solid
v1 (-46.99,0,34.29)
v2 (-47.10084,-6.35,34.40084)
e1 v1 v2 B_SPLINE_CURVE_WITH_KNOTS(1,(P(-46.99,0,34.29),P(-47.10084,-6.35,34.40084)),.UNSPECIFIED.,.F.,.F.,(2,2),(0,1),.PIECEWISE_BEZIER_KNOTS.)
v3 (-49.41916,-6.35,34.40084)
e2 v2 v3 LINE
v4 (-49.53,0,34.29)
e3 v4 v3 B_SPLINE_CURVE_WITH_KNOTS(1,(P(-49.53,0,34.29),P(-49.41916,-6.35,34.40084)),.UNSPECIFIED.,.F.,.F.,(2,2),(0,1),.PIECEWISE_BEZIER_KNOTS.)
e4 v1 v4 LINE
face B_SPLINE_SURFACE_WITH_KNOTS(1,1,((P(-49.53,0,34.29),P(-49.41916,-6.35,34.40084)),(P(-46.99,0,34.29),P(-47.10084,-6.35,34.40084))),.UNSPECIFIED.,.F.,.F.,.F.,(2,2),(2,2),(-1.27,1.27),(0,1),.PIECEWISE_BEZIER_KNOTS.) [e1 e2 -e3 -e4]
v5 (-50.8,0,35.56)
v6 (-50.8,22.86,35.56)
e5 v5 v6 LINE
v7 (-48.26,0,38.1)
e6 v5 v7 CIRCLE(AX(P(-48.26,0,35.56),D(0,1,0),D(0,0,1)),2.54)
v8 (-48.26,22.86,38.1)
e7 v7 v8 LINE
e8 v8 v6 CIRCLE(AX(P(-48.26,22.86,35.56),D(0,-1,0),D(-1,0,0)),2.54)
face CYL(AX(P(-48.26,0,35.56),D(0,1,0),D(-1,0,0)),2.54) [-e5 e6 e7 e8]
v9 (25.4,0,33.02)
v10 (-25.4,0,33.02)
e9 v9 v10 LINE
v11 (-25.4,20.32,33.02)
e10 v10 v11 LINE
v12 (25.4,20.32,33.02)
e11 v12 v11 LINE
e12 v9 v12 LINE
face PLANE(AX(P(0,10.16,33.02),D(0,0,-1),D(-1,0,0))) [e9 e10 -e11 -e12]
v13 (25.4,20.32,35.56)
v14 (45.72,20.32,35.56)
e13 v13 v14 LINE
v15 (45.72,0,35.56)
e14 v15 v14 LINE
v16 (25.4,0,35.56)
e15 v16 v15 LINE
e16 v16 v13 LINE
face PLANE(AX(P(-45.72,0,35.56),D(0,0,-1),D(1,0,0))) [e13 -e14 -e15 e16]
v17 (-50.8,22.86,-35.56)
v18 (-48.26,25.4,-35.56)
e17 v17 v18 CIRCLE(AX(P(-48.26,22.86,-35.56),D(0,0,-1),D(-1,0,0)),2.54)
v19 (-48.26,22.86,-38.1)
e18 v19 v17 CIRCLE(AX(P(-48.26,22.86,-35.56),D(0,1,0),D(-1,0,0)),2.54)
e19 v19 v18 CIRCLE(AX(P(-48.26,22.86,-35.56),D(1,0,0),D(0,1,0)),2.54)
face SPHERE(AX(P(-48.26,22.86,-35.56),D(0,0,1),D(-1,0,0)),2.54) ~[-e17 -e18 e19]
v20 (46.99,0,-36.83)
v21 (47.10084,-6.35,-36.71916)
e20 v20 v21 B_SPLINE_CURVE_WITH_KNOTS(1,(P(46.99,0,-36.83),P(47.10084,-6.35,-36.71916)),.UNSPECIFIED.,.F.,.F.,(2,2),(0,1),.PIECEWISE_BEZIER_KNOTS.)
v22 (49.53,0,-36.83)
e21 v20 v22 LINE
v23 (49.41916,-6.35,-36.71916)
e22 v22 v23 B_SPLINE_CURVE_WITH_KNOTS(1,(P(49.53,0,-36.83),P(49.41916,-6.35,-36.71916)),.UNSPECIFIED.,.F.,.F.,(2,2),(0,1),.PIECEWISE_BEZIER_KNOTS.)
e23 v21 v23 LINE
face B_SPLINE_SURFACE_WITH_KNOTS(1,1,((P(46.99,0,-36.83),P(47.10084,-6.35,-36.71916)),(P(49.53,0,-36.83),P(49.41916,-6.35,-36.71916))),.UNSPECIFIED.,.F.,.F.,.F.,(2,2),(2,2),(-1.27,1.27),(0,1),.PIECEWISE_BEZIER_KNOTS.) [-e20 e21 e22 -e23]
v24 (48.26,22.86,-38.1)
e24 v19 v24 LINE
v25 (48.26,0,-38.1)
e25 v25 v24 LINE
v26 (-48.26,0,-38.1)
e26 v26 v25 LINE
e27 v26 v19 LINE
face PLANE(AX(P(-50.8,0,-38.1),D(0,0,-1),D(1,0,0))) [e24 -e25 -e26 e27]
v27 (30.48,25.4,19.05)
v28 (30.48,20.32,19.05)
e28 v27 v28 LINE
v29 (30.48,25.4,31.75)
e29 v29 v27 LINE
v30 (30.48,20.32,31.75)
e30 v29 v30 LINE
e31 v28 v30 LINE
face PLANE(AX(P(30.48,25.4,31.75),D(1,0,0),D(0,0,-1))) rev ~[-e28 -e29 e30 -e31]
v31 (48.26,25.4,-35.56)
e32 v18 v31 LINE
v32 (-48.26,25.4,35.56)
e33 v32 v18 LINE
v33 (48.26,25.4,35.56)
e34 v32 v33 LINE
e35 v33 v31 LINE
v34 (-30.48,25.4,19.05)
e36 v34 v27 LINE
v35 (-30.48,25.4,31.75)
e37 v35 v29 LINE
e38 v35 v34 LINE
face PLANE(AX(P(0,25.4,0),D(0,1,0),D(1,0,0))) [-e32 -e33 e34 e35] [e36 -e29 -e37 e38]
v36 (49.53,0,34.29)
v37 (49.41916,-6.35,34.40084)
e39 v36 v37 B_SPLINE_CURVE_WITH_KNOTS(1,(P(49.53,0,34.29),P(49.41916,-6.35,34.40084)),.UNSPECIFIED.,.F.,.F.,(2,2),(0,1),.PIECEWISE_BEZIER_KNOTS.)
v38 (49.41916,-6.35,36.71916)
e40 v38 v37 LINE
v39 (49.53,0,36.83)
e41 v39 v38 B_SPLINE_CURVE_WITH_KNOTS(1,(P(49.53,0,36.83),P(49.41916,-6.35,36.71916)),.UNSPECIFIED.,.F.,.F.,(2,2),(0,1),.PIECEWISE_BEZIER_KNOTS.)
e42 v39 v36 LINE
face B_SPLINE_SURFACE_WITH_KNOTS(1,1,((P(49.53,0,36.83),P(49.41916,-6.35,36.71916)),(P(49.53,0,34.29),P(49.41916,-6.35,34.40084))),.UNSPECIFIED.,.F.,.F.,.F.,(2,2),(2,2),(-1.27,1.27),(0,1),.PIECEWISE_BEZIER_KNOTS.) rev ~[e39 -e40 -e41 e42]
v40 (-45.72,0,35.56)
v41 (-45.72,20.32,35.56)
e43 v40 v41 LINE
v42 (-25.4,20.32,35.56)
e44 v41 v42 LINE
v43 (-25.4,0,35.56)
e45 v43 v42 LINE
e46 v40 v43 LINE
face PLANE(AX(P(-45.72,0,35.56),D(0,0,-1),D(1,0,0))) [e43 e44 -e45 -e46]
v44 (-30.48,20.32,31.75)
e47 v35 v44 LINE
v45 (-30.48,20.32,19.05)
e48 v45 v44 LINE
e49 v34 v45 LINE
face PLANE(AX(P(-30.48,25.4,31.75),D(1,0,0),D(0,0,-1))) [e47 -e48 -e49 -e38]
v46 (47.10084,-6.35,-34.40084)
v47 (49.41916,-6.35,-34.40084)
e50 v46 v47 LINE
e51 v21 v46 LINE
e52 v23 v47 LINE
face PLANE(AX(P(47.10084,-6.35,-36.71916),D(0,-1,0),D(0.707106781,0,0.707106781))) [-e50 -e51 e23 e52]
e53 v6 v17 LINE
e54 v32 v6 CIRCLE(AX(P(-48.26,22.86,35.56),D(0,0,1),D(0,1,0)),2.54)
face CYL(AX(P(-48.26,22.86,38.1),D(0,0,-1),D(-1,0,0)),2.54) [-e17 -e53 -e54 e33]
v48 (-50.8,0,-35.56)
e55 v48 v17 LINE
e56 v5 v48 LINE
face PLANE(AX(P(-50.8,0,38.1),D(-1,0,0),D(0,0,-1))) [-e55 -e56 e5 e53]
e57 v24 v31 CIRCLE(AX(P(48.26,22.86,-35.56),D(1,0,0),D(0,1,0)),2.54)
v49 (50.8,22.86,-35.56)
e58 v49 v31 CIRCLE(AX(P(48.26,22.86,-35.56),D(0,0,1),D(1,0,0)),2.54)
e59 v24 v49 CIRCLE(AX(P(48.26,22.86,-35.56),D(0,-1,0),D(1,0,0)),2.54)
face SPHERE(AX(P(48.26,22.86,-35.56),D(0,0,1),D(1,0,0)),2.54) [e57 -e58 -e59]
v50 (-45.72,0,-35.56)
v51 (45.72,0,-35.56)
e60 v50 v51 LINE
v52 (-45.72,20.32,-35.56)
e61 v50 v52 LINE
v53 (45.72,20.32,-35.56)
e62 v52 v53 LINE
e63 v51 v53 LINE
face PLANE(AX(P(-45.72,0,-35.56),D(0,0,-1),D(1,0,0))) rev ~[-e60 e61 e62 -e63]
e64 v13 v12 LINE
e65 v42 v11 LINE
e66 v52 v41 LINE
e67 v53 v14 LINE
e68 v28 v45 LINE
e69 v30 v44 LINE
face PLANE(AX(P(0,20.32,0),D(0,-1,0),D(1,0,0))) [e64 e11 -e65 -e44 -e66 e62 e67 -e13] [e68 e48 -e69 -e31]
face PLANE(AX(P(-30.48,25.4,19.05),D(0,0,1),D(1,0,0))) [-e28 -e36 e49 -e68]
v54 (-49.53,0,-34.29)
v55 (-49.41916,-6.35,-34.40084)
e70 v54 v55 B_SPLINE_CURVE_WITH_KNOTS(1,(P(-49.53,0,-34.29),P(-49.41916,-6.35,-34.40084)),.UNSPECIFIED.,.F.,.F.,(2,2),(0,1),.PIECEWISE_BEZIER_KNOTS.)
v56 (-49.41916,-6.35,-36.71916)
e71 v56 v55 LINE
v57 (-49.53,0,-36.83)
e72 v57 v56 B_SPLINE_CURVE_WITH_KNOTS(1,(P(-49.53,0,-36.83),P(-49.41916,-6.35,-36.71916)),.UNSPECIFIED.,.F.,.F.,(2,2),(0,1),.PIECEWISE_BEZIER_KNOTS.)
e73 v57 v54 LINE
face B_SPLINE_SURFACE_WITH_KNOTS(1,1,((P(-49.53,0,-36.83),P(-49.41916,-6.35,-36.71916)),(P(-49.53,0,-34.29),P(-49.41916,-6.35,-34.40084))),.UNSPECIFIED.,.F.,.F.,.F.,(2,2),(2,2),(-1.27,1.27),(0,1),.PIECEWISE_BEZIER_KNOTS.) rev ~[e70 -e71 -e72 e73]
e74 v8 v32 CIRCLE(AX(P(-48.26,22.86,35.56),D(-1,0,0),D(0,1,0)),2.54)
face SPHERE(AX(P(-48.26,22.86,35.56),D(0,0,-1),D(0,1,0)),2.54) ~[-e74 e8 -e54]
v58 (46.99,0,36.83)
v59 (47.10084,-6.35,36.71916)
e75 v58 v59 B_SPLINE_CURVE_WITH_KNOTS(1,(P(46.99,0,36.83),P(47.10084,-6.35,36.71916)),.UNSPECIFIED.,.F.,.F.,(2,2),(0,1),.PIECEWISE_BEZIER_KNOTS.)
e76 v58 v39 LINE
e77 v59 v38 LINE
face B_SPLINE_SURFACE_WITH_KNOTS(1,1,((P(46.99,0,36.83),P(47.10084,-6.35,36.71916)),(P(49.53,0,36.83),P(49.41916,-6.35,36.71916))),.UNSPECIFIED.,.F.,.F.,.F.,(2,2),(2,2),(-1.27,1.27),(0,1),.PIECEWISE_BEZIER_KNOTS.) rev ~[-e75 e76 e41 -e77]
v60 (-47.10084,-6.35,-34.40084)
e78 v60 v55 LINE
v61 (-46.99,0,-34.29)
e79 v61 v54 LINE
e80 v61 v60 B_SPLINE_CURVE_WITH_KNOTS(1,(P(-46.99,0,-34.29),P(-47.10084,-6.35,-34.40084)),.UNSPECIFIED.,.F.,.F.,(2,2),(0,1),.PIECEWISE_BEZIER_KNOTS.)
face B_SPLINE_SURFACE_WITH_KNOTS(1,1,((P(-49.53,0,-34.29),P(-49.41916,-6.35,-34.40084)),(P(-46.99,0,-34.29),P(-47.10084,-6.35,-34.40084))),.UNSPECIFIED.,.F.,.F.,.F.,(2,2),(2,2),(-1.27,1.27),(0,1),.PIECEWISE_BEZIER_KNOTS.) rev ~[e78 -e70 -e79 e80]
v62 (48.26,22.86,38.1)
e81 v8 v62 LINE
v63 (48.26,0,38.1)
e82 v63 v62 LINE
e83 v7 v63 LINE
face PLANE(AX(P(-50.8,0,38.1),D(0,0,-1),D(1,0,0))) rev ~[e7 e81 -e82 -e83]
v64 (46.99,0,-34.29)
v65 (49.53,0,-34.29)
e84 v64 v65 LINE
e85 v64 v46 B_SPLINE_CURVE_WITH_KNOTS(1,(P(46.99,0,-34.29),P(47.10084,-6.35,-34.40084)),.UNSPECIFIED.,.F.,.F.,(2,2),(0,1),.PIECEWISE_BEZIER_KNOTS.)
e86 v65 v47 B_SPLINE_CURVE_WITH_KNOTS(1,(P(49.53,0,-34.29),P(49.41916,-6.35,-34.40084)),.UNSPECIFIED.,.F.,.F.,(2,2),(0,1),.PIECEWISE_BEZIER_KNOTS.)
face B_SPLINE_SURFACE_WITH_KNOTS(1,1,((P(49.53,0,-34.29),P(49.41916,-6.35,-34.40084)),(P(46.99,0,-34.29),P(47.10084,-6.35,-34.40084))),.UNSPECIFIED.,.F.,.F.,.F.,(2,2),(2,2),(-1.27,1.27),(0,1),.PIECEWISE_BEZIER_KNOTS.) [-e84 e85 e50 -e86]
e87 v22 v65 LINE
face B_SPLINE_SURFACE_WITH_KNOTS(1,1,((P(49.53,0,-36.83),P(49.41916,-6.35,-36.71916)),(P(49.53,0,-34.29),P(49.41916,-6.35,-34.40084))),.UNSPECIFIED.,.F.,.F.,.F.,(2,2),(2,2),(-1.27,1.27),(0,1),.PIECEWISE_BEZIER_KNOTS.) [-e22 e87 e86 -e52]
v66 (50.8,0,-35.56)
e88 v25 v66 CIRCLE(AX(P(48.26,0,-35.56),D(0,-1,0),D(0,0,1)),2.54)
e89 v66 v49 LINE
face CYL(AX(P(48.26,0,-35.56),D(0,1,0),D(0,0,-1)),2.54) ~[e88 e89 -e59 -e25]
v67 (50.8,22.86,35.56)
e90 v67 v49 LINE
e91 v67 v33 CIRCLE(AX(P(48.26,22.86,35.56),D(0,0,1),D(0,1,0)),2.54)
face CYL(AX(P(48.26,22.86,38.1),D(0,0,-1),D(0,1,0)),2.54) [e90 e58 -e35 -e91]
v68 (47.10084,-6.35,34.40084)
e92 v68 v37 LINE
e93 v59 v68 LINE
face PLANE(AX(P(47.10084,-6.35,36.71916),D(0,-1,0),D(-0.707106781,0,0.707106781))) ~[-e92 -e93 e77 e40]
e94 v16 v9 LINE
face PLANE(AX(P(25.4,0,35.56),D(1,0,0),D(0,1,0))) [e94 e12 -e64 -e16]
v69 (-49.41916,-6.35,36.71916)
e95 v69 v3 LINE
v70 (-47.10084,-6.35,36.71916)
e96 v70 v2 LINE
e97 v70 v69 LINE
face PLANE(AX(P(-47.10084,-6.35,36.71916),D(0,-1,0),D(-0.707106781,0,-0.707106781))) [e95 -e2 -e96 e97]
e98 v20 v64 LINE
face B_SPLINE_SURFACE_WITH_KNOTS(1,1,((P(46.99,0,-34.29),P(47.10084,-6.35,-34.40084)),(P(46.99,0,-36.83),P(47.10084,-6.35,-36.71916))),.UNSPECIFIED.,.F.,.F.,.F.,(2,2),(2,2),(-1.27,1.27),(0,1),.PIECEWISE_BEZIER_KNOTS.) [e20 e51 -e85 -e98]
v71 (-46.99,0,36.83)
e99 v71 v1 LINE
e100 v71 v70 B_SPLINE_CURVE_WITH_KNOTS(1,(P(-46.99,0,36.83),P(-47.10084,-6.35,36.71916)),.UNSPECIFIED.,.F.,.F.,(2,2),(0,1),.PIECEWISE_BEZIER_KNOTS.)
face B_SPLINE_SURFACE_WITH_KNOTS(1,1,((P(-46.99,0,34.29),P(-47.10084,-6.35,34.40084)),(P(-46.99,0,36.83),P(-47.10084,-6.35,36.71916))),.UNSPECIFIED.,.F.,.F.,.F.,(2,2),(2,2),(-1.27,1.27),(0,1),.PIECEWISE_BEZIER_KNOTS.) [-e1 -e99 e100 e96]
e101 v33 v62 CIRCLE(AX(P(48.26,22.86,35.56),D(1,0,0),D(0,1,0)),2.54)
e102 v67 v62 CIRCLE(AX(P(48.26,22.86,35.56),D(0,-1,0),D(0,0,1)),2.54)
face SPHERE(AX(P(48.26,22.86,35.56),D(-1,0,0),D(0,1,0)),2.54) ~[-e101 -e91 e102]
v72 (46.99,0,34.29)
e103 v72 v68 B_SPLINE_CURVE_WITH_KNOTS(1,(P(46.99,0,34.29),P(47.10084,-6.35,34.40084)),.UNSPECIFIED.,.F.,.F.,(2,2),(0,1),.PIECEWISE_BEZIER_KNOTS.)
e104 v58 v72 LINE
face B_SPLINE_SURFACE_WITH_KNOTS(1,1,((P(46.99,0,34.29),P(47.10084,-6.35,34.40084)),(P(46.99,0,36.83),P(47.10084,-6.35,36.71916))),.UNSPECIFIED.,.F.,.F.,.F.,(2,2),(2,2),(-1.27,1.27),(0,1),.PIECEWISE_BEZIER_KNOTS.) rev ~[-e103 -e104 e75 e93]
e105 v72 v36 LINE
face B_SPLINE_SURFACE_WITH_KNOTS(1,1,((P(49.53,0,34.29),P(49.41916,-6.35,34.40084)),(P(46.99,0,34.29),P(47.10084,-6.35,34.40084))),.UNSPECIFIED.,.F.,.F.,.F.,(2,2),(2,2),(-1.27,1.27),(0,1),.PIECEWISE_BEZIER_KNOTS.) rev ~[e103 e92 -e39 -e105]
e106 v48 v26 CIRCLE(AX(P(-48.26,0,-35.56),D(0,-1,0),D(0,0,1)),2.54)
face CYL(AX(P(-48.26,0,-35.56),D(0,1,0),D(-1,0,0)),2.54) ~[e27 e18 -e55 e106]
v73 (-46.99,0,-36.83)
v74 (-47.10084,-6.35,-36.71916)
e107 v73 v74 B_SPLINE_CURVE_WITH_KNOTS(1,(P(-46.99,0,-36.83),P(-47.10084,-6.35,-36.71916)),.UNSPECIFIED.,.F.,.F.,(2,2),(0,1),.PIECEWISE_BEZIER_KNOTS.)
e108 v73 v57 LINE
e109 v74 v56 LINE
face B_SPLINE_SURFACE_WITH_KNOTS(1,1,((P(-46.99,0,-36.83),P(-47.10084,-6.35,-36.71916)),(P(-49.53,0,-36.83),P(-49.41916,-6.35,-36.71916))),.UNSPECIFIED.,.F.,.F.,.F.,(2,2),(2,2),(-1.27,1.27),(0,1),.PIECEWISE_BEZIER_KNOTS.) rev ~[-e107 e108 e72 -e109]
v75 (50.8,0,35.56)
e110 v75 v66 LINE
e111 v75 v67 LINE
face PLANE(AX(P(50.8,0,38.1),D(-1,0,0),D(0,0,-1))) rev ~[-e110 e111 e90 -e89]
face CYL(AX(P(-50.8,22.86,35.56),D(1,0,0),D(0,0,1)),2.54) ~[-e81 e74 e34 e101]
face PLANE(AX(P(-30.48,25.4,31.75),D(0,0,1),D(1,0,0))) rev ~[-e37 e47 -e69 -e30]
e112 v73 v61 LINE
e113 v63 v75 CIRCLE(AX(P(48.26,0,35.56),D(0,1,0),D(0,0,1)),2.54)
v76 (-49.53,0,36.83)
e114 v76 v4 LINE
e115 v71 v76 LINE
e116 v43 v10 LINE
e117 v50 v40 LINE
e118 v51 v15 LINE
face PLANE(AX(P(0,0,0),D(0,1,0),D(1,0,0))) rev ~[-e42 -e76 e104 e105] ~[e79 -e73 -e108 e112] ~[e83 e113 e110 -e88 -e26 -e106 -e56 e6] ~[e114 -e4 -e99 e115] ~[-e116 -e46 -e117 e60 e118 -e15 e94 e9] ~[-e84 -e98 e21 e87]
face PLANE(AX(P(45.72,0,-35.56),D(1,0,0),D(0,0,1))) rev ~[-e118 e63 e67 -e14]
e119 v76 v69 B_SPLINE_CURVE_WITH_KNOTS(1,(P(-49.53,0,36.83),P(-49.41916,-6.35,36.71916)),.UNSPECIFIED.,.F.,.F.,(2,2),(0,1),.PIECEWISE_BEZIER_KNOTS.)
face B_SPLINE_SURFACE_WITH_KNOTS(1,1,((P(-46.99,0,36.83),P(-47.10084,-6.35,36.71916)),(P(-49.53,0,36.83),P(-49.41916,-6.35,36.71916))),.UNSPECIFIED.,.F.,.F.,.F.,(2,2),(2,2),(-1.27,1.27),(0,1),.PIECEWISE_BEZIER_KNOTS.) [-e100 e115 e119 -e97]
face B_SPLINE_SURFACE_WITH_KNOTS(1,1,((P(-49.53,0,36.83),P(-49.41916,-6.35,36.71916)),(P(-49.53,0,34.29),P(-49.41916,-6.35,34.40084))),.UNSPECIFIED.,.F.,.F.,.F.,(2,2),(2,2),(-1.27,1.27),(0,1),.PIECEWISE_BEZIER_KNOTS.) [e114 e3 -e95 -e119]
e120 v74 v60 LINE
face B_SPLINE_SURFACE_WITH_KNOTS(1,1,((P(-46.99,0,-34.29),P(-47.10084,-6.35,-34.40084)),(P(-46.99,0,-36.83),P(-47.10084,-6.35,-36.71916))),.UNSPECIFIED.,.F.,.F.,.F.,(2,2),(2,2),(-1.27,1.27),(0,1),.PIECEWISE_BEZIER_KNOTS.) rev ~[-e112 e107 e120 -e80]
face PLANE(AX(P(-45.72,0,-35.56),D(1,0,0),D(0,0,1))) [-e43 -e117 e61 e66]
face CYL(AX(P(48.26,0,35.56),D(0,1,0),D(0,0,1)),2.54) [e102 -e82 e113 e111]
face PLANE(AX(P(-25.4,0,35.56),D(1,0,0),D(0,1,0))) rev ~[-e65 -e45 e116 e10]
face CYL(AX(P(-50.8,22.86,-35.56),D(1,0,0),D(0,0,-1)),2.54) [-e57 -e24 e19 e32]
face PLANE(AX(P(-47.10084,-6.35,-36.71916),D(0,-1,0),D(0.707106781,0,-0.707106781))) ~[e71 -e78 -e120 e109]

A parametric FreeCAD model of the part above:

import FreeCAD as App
import Part
import Sketcher
from FreeCAD import Vector
Q = App.Units.Quantity


def edges_at(feature, points):
    """Names of the edges that pass closest to the given points."""
    edges = feature.Shape.Edges
    near = lambda p: min(range(len(edges)), key=lambda i: edges[i].distToShape(Part.Vertex(*p))[0])
    return sorted({f"Edge{near(p) + 1}" for p in points})


def add_polygon(sketch, points):
    """Adds a closed chain of lines whose ends are joined by coincident constraints."""
    first, n = sketch.GeometryCount, len(points)
    for a, b in zip(points, points[1:] + points[:1]):
        sketch.addGeometry(Part.LineSegment(App.Vector(*a, 0), App.Vector(*b, 0)), False)
    for i in range(n):
        sketch.addConstraint(Sketcher.Constraint("Coincident", first + i, 2, first + (i + 1) % n, 1))

doc = App.newDocument("Part")
body = doc.addObject("PartDesign::Body", "Body")

sketch1 = body.newObject("Sketcher::SketchObject", "Sketch")
sketch1.AttachmentSupport = (doc.getObject("XZ_Plane"), [""])
sketch1.MapMode = "FlatFace"
add_polygon(sketch1, [(-51, -38), (-51, 38), (51, 38), (51, -38)])
sketch1.addConstraint(Sketcher.Constraint("Vertical", 0))
sketch1.addConstraint(Sketcher.Constraint("Horizontal", 1))
sketch1.addConstraint(Sketcher.Constraint("Vertical", 2))
sketch1.addConstraint(Sketcher.Constraint("Horizontal", 3))
sketch1.addConstraint(Sketcher.Constraint("Symmetric", 0, 2, 2, 2, -1, 1))
sketch1.addConstraint(Sketcher.Constraint("DistanceX", 1, 1, 1, 2, Q("4 in")))
sketch1.addConstraint(Sketcher.Constraint("DistanceY", 0, 1, 0, 2, Q("3 in")))
pad1 = body.newObject("PartDesign::Pad", "Pad")
pad1.Profile = sketch1
pad1.Length = Q("1 in")
pad1.Reversed = True

sketch2 = body.newObject("Sketcher::SketchObject", "Sketch001")
sketch2.AttachmentSupport = (doc.getObject("XZ_Plane"), [""])
sketch2.MapMode = "FlatFace"
add_polygon(sketch2, [(-46, 36), (-46, -36), (46, -36), (46, 36)])
sketch2.addConstraint(Sketcher.Constraint("Vertical", 0))
sketch2.addConstraint(Sketcher.Constraint("Horizontal", 1))
sketch2.addConstraint(Sketcher.Constraint("Vertical", 2))
sketch2.addConstraint(Sketcher.Constraint("Horizontal", 3))
sketch2.addConstraint(Sketcher.Constraint("Symmetric", 0, 2, 2, 2, -1, 1))
sketch2.addConstraint(Sketcher.Constraint("DistanceX", 1, 1, 1, 2, Q("3.6 in")))
sketch2.addConstraint(Sketcher.Constraint("DistanceY", 0, 2, 0, 1, Q("2.8 in")))
pocket1 = body.newObject("PartDesign::Pocket", "Pocket")
pocket1.Profile = sketch2
pocket1.Length = Q("0.8 in")
doc.recompute()

fillet = body.newObject("PartDesign::Fillet", "Fillet")
fillet.Base = (pocket1, edges_at(pocket1, [
    (-50.8, 25.4, 0),
    (0, 25.4, 38.1),
    (50.8, 25.4, 0),
    (50.8, 12.7, 38.1),
    (-50.8, 12.7, 38.1),
    (-50.8, 12.7, -38.1),
    (50.8, 12.7, -38.1),
    (0, 25.4, -38.1),
]))
fillet.Radius = Q("0.1 in")

sketch3 = body.newObject("Sketcher::SketchObject", "Sketch002")
sketch3.AttachmentSupport = (doc.getObject("XZ_Plane"), [""])
sketch3.MapMode = "FlatFace"
add_polygon(sketch3, [(-47, 34.3), (-47, 36.8), (-49.5, 36.8), (-49.5, 34.3)])
sketch3.addConstraint(Sketcher.Constraint("Vertical", 0))
sketch3.addConstraint(Sketcher.Constraint("Horizontal", 1))
sketch3.addConstraint(Sketcher.Constraint("Vertical", 2))
sketch3.addConstraint(Sketcher.Constraint("Horizontal", 3))
sketch3.addConstraint(Sketcher.Constraint("Equal", 3, 0))
sketch3.addConstraint(Sketcher.Constraint("DistanceX", 1, 2, 1, 1, Q("0.1 in")))
sketch3.addConstraint(Sketcher.Constraint("DistanceX", 0, 2, -1, 1, Q("1.85 in")))
sketch3.addConstraint(Sketcher.Constraint("DistanceY", -1, 1, 0, 2, Q("1.45 in")))
pad2 = body.newObject("PartDesign::Pad", "Pad001")
pad2.Profile = sketch3
pad2.Length = Q("0.25 in")
pad2.TaperAngle = -1
doc.recompute()

mirrored = body.newObject("PartDesign::Mirrored", "Mirrored")
mirrored.Originals = [pad2]
mirrored.MirrorPlane = (doc.getObject("YZ_Plane"), [""])
body.Tip = mirrored
doc.recompute()

mirrored2 = body.newObject("PartDesign::Mirrored", "Mirrored001")
mirrored2.Originals = [pad2]
mirrored2.MirrorPlane = (doc.getObject("XY_Plane"), [""])
body.Tip = mirrored2

sketch4 = body.newObject("Sketcher::SketchObject", "Sketch003")
sketch4.AttachmentSupport = (doc.getObject("XZ_Plane"), [""])
sketch4.MapMode = "FlatFace"
add_polygon(sketch4, [(47, -34.3), (47, -36.8), (49.5, -36.8), (49.5, -34.3)])
sketch4.addConstraint(Sketcher.Constraint("Vertical", 0))
sketch4.addConstraint(Sketcher.Constraint("Horizontal", 1))
sketch4.addConstraint(Sketcher.Constraint("Vertical", 2))
sketch4.addConstraint(Sketcher.Constraint("Horizontal", 3))
sketch4.addConstraint(Sketcher.Constraint("Equal", 3, 0))
sketch4.addConstraint(Sketcher.Constraint("DistanceX", 1, 1, 1, 2, Q("0.1 in")))
sketch4.addConstraint(Sketcher.Constraint("DistanceX", -1, 1, 0, 2, Q("1.85 in")))
sketch4.addConstraint(Sketcher.Constraint("DistanceY", 0, 2, -1, 1, Q("1.45 in")))
pad3 = body.newObject("PartDesign::Pad", "Pad002")
pad3.Profile = sketch4
pad3.Length = Q("0.25 in")
pad3.TaperAngle = -1

sketch5 = body.newObject("Sketcher::SketchObject", "Sketch004")
sketch5.AttachmentSupport = (doc.getObject("XZ_Plane"), [""])
sketch5.MapMode = "FlatFace"
sketch5.AttachmentOffset = App.Placement(Vector(0, 0, -1 * 25.4), App.Rotation())
add_polygon(sketch5, [(-30, 19), (-30, 32), (30, 32), (30, 19)])
sketch5.addConstraint(Sketcher.Constraint("Vertical", 0))
sketch5.addConstraint(Sketcher.Constraint("Horizontal", 1))
sketch5.addConstraint(Sketcher.Constraint("Vertical", 2))
sketch5.addConstraint(Sketcher.Constraint("Horizontal", 3))
sketch5.addConstraint(Sketcher.Constraint("DistanceX", 1, 1, 1, 2, Q("2.4 in")))
sketch5.addConstraint(Sketcher.Constraint("DistanceY", 0, 1, 0, 2, Q("0.5 in")))
sketch5.addConstraint(Sketcher.Constraint("DistanceX", 0, 2, -1, 1, Q("1.2 in")))
sketch5.addConstraint(Sketcher.Constraint("DistanceY", -1, 1, 0, 2, Q("1.25 in")))
pocket2 = body.newObject("PartDesign::Pocket", "Pocket001")
pocket2.Profile = sketch5
pocket2.Type = "ThroughAll"
pocket2.Reversed = True

sketch6 = body.newObject("Sketcher::SketchObject", "Sketch005")
sketch6.AttachmentSupport = (doc.getObject("XY_Plane"), [""])
sketch6.MapMode = "FlatFace"
sketch6.AttachmentOffset = App.Placement(Vector(0, 0, 1.4 * 25.4), App.Rotation())
add_polygon(sketch6, [(25, 20), (25, 0), (-25, 0), (-25, 20)])
sketch6.addConstraint(Sketcher.Constraint("Vertical", 0))
sketch6.addConstraint(Sketcher.Constraint("Horizontal", 1))
sketch6.addConstraint(Sketcher.Constraint("Vertical", 2))
sketch6.addConstraint(Sketcher.Constraint("Horizontal", 3))
sketch6.addConstraint(Sketcher.Constraint("Symmetric", 0, 2, 1, 2, -1, 1))
sketch6.addConstraint(Sketcher.Constraint("DistanceX", 1, 2, 1, 1, Q("2 in")))
sketch6.addConstraint(Sketcher.Constraint("DistanceY", 0, 2, 0, 1, Q("0.8 in")))
pad4 = body.newObject("PartDesign::Pad", "Pad003")
pad4.Profile = sketch6
pad4.Length = Q("0.1 in")
pad4.Reversed = True

doc.recompute()
